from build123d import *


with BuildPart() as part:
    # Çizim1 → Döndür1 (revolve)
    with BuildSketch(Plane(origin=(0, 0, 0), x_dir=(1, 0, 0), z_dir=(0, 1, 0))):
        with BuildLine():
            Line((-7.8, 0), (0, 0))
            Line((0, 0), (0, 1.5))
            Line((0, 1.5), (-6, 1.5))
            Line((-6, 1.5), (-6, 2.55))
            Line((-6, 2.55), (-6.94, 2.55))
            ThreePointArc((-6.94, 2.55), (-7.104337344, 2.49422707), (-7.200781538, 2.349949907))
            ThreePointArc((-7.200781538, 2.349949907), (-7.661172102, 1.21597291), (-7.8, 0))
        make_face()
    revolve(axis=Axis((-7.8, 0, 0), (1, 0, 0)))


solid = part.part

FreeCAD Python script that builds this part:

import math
import FreeCAD as App
import Part
import Sketcher

V = App.Vector

doc = App.newDocument("Part")
body = doc.addObject("PartDesign::Body", "Body")

# Sketch on XZ plane
sketch1 = body.newObject("Sketcher::SketchObject", "Sketch")
sketch1.AttachmentSupport = (doc.getObject("XZ_Plane"), [""])
sketch1.MapMode = "FlatFace"
sketch1.addGeometry([
    Part.LineSegment(V(-7.8, 0, 0), V(0, 0, 0)),  # 0
    Part.LineSegment(V(0, 0, 0), V(0, -1.5, 0)),  # 1
    Part.LineSegment(V(0, -1.5, 0), V(-6, -1.5, 0)),  # 2
    Part.LineSegment(V(-6, -1.5, 0), V(-6, -2.55, 0)),  # 3
    Part.LineSegment(V(-6, -2.55, 0), V(-6.94, -2.55, 0)),  # 4
    Part.ArcOfCircle(Part.Circle(V(-6.94, -2.28, 0), V(0, 0, 1), 0.27), math.radians(-165), math.radians(-90)),  # 5
    Part.ArcOfCircle(Part.Circle(V(-3.29, -0.1, 0), V(0, 0, 1), 4.51), math.radians(179), math.radians(210)),  # 6
], False)
sketch1.addConstraint([
    Sketcher.Constraint("Coincident", 0, 2, 1, 1),
    Sketcher.Constraint("Coincident", 1, 2, 2, 1),
    Sketcher.Constraint("Coincident", 2, 2, 3, 1),
    Sketcher.Constraint("Coincident", 3, 2, 4, 1),
    Sketcher.Constraint("Tangent", 4, 2, 5, 2),
    Sketcher.Constraint("Coincident", 5, 1, 6, 2),
    Sketcher.Constraint("Coincident", 6, 1, 0, 1),
    Sketcher.Constraint("Horizontal", 0),
    Sketcher.Constraint("Vertical", 1),
    Sketcher.Constraint("Horizontal", 2),
    Sketcher.Constraint("Vertical", 3),
    Sketcher.Constraint("Horizontal", 4),
    Sketcher.Constraint("Coincident", 0, 2, -1, 1),
    Sketcher.Constraint("DistanceX", 2, 2, 2, 1, 6.0),
    Sketcher.Constraint("Radius", 5, 0.27),
    Sketcher.Constraint("DistanceX", 0, 1, 0, 2, 7.8),
    Sketcher.Constraint("DistanceY", 1, 2, 1, 1, 1.5),
    Sketcher.Constraint("DistanceX", 4, 2, 4, 1, 0.94),
    Sketcher.Constraint("DistanceY", 3, 2, 3, 1, 1.05),
    Sketcher.Constraint("Radius", 6, 4.513646),
    Sketcher.Constraint("DistanceX", 5, 1, -1, 1, 7.200782),
])
revolution = body.newObject("PartDesign::Revolution", "Revolution")
revolution.Profile = sketch1
revolution.ReferenceAxis = (sketch1, ["H_Axis"])
revolution.Angle = 360

doc.recompute()
